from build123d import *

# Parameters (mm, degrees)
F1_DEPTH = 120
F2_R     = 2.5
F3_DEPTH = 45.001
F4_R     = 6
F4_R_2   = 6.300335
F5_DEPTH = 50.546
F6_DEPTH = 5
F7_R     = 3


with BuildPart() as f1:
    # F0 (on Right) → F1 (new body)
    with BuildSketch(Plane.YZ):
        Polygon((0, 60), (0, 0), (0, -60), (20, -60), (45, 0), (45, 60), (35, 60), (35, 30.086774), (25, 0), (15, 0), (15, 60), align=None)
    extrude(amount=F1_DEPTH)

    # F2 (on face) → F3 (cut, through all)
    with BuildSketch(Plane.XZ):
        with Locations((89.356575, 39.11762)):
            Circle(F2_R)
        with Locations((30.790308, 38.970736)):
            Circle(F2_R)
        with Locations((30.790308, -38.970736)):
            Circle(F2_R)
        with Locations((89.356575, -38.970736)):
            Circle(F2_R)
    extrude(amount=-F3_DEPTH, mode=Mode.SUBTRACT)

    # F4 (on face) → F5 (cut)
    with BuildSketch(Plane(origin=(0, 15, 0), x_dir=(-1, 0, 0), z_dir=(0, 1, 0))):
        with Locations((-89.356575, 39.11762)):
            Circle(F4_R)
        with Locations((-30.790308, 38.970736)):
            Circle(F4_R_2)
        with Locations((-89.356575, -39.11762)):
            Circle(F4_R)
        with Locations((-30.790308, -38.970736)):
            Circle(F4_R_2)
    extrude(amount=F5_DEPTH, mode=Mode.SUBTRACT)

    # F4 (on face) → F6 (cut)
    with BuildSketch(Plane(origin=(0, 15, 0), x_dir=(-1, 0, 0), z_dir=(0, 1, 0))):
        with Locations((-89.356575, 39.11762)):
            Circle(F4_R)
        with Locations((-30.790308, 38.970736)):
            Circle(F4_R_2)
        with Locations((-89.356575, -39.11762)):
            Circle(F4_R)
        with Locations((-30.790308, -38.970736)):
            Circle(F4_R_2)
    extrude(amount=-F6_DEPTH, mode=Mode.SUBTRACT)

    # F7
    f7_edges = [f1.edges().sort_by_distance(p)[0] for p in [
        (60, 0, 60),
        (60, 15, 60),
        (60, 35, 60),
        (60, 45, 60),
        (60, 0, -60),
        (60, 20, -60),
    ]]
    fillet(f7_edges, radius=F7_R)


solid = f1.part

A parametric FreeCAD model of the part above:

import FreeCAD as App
import Part
import Sketcher
from FreeCAD import Vector


def edges_at(feature, points):
    """Names of the edges that pass closest to the given points."""
    edges = feature.Shape.Edges
    near = lambda p: min(range(len(edges)), key=lambda i: edges[i].distToShape(Part.Vertex(*p))[0])
    return sorted({f"Edge{near(p) + 1}" for p in points})


def add_polygon(sketch, points):
    """Adds a closed chain of lines whose ends are joined by coincident constraints."""
    first, n = sketch.GeometryCount, len(points)
    for a, b in zip(points, points[1:] + points[:1]):
        sketch.addGeometry(Part.LineSegment(App.Vector(*a, 0), App.Vector(*b, 0)), False)
    for i in range(n):
        sketch.addConstraint(Sketcher.Constraint("Coincident", first + i, 2, first + (i + 1) % n, 1))

doc = App.newDocument("Part")
body = doc.addObject("PartDesign::Body", "Body")

sketch1 = body.newObject("Sketcher::SketchObject", "Sketch")
sketch1.AttachmentSupport = (doc.getObject("YZ_Plane"), [""])
sketch1.MapMode = "FlatFace"
add_polygon(sketch1, [(0, 60), (0, -60), (20, -60), (45, 0), (45, 60), (35, 60), (35, 30), (25, 0), (15, 0), (15, 60)])
sketch1.addConstraint([
    Sketcher.Constraint("Vertical", 0),
    Sketcher.Constraint("Horizontal", 1),
    Sketcher.Constraint("Vertical", 3),
    Sketcher.Constraint("Horizontal", 4),
    Sketcher.Constraint("Vertical", 5),
    Sketcher.Constraint("Horizontal", 7),
    Sketcher.Constraint("Vertical", 8),
    Sketcher.Constraint("Horizontal", 9),
    Sketcher.Constraint("Symmetric", 0, 2, 9, 2, -1, 1),
    Sketcher.Constraint("PointOnObject", 2, 2, -1),
    Sketcher.Constraint("PointOnObject", 6, 2, -1),
    Sketcher.Constraint("Horizontal", 4, 2, 8, 2),
    Sketcher.Constraint("Equal", 4, 7),
    Sketcher.Constraint("DistanceX", 1, 1, 1, 2, 20.0),
    Sketcher.Constraint("DistanceX", 4, 2, 4, 1, 10.0),
    Sketcher.Constraint("DistanceX", 9, 2, 9, 1, 15.0),
    Sketcher.Constraint("DistanceY", 0, 2, 0, 1, 120.0),
    Sketcher.Constraint("Distance", 2, 65.0),
    Sketcher.Constraint("Distance", 6, 31.70511),
])
pad1 = body.newObject("PartDesign::Pad", "Pad")
pad1.Profile = sketch1
pad1.Length = 120

sketch2 = body.newObject("Sketcher::SketchObject", "Sketch001")
sketch2.AttachmentSupport = (doc.getObject("XZ_Plane"), [""])
sketch2.MapMode = "FlatFace"
sketch2.addGeometry([
    Part.Circle(Vector(89.4, 39.1, 0), Vector(0, 0, 1), 2.5),
    Part.Circle(Vector(30.8, 39, 0), Vector(0, 0, 1), 2.5),
    Part.Circle(Vector(30.8, -39, 0), Vector(0, 0, 1), 2.5),
    Part.Circle(Vector(89.4, -39, 0), Vector(0, 0, 1), 2.5),
], False)
sketch2.addConstraint([
    Sketcher.Constraint("Equal", 0, 1),
    Sketcher.Constraint("Equal", 1, 2),
    Sketcher.Constraint("Equal", 2, 3),
    Sketcher.Constraint("Symmetric", 1, 3, 2, 3, -1),
    Sketcher.Constraint("Horizontal", 2, 3, 3, 3),
    Sketcher.Constraint("Vertical", 0, 3, 3, 3),
    Sketcher.Constraint("Diameter", 0, 5.0),
    Sketcher.Constraint("DistanceY", -1, 1, 0, 3, 39.11762),
    Sketcher.Constraint("DistanceX", -1, 1, 0, 3, 89.356575),
    Sketcher.Constraint("DistanceX", -1, 1, 1, 3, 30.790308),
    Sketcher.Constraint("DistanceY", -1, 1, 1, 3, 38.970736),
])
pocket1 = body.newObject("PartDesign::Pocket", "Pocket")
pocket1.Profile = sketch2
pocket1.Type = "ThroughAll"

sketch3 = body.newObject("Sketcher::SketchObject", "Sketch002")
sketch3.AttachmentSupport = (doc.getObject("XZ_Plane"), [""])
sketch3.MapMode = "FlatFace"
sketch3.AttachmentOffset = App.Placement(Vector(0, 0, -15), App.Rotation())
sketch3.addGeometry([
    Part.Circle(Vector(89, 39, 0), Vector(0, 0, 1), 6),
    Part.Circle(Vector(31, 39, 0), Vector(0, 0, 1), 6),
    Part.Circle(Vector(89, -39, 0), Vector(0, 0, 1), 6),
    Part.Circle(Vector(31, -39, 0), Vector(0, 0, 1), 6),
], False)
sketch3.addConstraint([
    Sketcher.Constraint("Equal", 0, 2),
    Sketcher.Constraint("Equal", 1, 3),
    Sketcher.Constraint("Symmetric", 0, 3, 2, 3, -1),
    Sketcher.Constraint("Symmetric", 1, 3, 3, 3, -1),
    Sketcher.Constraint("Diameter", 0, 12.0),
    Sketcher.Constraint("Diameter", 1, 12.60067),
    Sketcher.Constraint("DistanceY", -1, 1, 0, 3, 39.11762),
    Sketcher.Constraint("DistanceX", -1, 1, 0, 3, 89.356575),
    Sketcher.Constraint("DistanceX", -1, 1, 1, 3, 30.790308),
    Sketcher.Constraint("DistanceY", -1, 1, 1, 3, 38.970736),
])
pocket2 = body.newObject("PartDesign::Pocket", "Pocket001")
pocket2.Profile = sketch3
pocket2.Length = 50.546

sketch4 = body.newObject("Sketcher::SketchObject", "Sketch003")
sketch4.AttachmentSupport = (doc.getObject("XZ_Plane"), [""])
sketch4.MapMode = "FlatFace"
sketch4.AttachmentOffset = App.Placement(Vector(0, 0, -15), App.Rotation())
sketch4.addGeometry([
    Part.Circle(Vector(89, 39, 0), Vector(0, 0, 1), 6),
    Part.Circle(Vector(31, 39, 0), Vector(0, 0, 1), 6),
    Part.Circle(Vector(89, -39, 0), Vector(0, 0, 1), 6),
    Part.Circle(Vector(31, -39, 0), Vector(0, 0, 1), 6),
], False)
sketch4.addConstraint([
    Sketcher.Constraint("Equal", 0, 2),
    Sketcher.Constraint("Equal", 1, 3),
    Sketcher.Constraint("Symmetric", 0, 3, 2, 3, -1),
    Sketcher.Constraint("Symmetric", 1, 3, 3, 3, -1),
    Sketcher.Constraint("Diameter", 0, 12.0),
    Sketcher.Constraint("Diameter", 1, 12.60067),
    Sketcher.Constraint("DistanceY", -1, 1, 0, 3, 39.11762),
    Sketcher.Constraint("DistanceX", -1, 1, 0, 3, 89.356575),
    Sketcher.Constraint("DistanceX", -1, 1, 1, 3, 30.790308),
    Sketcher.Constraint("DistanceY", -1, 1, 1, 3, 38.970736),
])
pocket3 = body.newObject("PartDesign::Pocket", "Pocket002")
pocket3.Profile = sketch4
pocket3.Length = 5
pocket3.Reversed = True
doc.recompute()

fillet = body.newObject("PartDesign::Fillet", "Fillet")
fillet.Base = (pocket3, edges_at(pocket3, [
    (60, 0, 60),
    (60, 15, 60),
    (60, 35, 60),
    (60, 45, 60),
    (60, 0, -60),
    (60, 20, -60),
]))
fillet.Radius = 3

doc.recompute()
